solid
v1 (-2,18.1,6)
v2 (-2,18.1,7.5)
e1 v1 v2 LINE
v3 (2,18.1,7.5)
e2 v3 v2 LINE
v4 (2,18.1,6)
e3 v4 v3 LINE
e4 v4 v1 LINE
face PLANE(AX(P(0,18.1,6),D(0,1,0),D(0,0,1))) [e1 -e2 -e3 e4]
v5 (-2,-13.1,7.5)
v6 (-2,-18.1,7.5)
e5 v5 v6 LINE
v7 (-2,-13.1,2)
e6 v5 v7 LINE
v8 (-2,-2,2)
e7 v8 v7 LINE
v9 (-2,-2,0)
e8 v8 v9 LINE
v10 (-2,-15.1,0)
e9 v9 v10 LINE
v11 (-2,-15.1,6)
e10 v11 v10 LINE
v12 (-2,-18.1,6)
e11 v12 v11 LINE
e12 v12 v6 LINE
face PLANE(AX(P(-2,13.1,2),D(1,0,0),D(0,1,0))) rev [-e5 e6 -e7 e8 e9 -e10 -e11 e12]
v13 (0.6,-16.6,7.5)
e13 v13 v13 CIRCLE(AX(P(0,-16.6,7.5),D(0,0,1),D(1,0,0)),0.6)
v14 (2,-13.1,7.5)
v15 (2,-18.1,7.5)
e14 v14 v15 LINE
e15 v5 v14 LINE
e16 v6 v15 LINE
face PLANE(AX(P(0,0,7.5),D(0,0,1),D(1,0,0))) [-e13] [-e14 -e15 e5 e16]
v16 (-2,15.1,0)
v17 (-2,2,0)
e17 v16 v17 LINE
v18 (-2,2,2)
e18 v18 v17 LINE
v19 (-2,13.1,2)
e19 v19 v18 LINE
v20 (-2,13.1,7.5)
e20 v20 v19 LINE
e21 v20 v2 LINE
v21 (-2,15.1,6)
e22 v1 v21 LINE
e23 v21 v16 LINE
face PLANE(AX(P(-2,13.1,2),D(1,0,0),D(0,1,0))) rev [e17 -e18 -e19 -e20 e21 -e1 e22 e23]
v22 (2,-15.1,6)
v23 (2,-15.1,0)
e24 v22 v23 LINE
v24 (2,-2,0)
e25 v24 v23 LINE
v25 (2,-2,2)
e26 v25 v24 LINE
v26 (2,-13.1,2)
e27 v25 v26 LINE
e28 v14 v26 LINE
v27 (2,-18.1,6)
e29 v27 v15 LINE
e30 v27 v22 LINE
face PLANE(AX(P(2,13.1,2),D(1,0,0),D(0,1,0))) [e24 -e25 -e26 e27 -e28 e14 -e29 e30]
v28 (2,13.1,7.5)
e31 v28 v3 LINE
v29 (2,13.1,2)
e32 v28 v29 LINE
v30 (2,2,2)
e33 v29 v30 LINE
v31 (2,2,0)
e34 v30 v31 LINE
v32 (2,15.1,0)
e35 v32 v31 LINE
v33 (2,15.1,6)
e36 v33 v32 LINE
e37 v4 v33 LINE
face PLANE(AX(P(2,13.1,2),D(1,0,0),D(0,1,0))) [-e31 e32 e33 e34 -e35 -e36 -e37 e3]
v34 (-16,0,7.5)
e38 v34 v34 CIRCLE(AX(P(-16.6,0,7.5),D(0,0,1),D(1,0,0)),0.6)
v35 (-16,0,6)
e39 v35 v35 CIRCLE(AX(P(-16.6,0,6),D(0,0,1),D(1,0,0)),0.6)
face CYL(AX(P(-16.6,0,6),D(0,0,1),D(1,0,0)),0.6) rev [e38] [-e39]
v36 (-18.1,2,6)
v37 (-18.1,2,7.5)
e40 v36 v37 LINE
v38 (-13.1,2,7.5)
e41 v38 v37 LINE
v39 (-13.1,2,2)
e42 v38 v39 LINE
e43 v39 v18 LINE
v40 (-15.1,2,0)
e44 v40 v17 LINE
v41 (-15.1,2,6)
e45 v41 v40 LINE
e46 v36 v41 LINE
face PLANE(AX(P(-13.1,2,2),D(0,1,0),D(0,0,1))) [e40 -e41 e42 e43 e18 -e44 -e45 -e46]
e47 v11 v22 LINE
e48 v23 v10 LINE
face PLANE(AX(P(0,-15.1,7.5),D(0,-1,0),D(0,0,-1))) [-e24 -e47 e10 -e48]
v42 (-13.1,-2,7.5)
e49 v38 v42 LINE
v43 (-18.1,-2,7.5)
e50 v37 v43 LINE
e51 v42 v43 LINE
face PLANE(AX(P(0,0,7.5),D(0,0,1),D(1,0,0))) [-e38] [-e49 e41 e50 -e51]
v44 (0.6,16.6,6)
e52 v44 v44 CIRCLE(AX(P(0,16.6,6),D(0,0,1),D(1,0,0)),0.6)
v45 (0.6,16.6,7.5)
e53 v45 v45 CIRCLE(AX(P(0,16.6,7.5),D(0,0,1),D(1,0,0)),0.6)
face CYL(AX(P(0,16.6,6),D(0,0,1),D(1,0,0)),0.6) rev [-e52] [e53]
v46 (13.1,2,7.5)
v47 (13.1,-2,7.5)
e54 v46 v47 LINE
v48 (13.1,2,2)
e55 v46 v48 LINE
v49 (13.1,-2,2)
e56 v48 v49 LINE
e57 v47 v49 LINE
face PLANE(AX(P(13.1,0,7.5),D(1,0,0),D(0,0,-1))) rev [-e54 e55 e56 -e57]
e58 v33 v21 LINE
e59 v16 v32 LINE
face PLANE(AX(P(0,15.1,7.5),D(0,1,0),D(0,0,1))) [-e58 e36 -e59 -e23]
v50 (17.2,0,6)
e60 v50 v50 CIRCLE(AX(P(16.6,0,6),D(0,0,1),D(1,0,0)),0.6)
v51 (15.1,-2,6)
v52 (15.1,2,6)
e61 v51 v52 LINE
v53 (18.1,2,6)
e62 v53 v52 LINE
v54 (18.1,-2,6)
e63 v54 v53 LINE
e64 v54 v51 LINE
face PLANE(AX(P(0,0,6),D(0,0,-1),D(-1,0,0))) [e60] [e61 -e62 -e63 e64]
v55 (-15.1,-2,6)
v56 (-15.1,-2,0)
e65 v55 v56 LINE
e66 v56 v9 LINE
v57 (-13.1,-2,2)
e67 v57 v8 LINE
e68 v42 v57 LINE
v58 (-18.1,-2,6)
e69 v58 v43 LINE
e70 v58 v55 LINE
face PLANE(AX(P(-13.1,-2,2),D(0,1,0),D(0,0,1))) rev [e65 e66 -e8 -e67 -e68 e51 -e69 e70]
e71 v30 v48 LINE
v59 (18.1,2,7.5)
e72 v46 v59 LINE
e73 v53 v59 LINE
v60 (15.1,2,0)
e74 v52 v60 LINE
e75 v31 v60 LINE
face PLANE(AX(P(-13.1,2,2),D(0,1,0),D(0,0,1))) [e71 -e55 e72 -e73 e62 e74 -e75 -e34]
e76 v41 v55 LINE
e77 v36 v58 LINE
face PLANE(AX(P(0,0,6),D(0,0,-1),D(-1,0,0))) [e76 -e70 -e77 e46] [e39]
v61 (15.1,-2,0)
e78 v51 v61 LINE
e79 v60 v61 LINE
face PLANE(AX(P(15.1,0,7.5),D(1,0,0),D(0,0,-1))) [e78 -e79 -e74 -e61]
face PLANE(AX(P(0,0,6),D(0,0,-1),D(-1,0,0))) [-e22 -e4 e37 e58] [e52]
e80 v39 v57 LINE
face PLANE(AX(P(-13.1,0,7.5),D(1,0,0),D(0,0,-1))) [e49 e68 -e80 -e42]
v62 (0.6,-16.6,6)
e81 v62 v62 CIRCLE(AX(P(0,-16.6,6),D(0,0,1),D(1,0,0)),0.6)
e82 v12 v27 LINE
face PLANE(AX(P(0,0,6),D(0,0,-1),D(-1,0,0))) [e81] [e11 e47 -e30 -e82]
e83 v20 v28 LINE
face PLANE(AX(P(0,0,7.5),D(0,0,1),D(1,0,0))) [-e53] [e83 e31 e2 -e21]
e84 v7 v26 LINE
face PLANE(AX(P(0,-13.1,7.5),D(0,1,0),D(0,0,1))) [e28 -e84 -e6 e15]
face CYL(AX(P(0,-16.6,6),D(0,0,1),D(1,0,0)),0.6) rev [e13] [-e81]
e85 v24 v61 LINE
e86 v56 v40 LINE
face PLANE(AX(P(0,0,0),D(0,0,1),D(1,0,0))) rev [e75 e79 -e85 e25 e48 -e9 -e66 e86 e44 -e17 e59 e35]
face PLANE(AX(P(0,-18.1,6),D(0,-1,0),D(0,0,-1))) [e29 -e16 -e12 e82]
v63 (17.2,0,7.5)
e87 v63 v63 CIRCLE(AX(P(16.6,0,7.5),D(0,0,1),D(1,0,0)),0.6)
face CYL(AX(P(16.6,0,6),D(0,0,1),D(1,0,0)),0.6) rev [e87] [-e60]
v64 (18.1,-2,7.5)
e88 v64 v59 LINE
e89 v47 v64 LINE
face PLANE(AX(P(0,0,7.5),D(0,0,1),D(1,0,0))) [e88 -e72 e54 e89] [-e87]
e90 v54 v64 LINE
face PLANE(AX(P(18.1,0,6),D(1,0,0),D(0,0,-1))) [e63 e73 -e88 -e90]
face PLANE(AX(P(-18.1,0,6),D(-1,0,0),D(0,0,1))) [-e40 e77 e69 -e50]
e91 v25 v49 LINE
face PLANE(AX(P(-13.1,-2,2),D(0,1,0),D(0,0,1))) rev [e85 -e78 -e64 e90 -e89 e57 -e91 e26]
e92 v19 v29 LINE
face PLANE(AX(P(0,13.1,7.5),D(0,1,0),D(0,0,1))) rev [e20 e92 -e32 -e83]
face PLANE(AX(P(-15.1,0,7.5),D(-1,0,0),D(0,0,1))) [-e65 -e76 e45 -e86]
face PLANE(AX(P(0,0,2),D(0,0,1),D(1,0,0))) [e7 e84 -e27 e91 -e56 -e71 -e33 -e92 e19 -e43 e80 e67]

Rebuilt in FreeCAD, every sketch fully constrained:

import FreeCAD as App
import Part
import Sketcher


def add_polygon(sketch, points):
    """Adds a closed chain of lines whose ends are joined by coincident constraints."""
    first, n = sketch.GeometryCount, len(points)
    for a, b in zip(points, points[1:] + points[:1]):
        sketch.addGeometry(Part.LineSegment(App.Vector(*a, 0), App.Vector(*b, 0)), False)
    for i in range(n):
        sketch.addConstraint(Sketcher.Constraint("Coincident", first + i, 2, first + (i + 1) % n, 1))

doc = App.newDocument("Part")
body = doc.addObject("PartDesign::Body", "Body")

# Sketch on XY plane
sketch1 = doc.addObject("Sketcher::SketchObject", "Sketch")
body.addObject(sketch1)
sketch1.AttachmentSupport = (doc.XY_Plane, [""])
sketch1.MapMode = "FlatFace"
add_polygon(sketch1, [(-13.1, 2), (-13.1, -2), (-2, -2), (-2, -13.1), (2, -13.1), (2, -2), (13.1, -2), (13.1, 2), (2, 2), (2, 13.1), (-2, 13.1), (-2, 2)])  # lines 0-11
sketch1.addConstraint([
    Sketcher.Constraint("Vertical", 0),
    Sketcher.Constraint("Horizontal", 1),
    Sketcher.Constraint("Vertical", 2),
    Sketcher.Constraint("Horizontal", 3),
    Sketcher.Constraint("Vertical", 4),
    Sketcher.Constraint("Horizontal", 5),
    Sketcher.Constraint("Vertical", 6),
    Sketcher.Constraint("Horizontal", 7),
    Sketcher.Constraint("Vertical", 8),
    Sketcher.Constraint("Horizontal", 9),
    Sketcher.Constraint("Vertical", 10),
    Sketcher.Constraint("Horizontal", 11),
    Sketcher.Constraint("Symmetric", 0, 2, 6, 2, -1, 1),
    Sketcher.Constraint("Symmetric", 2, 2, 8, 2, -1, 1),
    Sketcher.Constraint("Symmetric", 4, 2, 10, 2, -1, 1),
    Sketcher.Constraint("Symmetric", 1, 2, 4, 2, -2),
    Sketcher.Constraint("Equal", 9, 0),
    Sketcher.Constraint("Equal", 11, 2),
    Sketcher.Constraint("DistanceX", 3, 1, 3, 2, 4.0),
    Sketcher.Constraint("DistanceX", 1, 1, 1, 2, 11.1),
])
pad1 = doc.addObject("PartDesign::Pad", "Pad")
body.addObject(pad1)
pad1.Profile = sketch1
pad1.Length = 2

# Sketch on XY plane
sketch2 = doc.addObject("Sketcher::SketchObject", "Sketch001")
body.addObject(sketch2)
sketch2.AttachmentSupport = (doc.XY_Plane, [""])
sketch2.MapMode = "FlatFace"
add_polygon(sketch2, [(13.1, 2), (13.1, -2), (15.1, -2), (15.1, 2)])  # lines 0-3
add_polygon(sketch2, [(-2, 15.1), (-2, 13.1), (2, 13.1), (2, 15.1)])  # lines 4-7
add_polygon(sketch2, [(-2, -13.1), (-2, -15.1), (2, -15.1), (2, -13.1)])  # lines 8-11
add_polygon(sketch2, [(-15.1, 2), (-15.1, -2), (-13.1, -2), (-13.1, 2)])  # lines 12-15
sketch2.addConstraint([
    Sketcher.Constraint("Vertical", 0),
    Sketcher.Constraint("Horizontal", 1),
    Sketcher.Constraint("Vertical", 2),
    Sketcher.Constraint("Horizontal", 3),
    Sketcher.Constraint("Vertical", 4),
    Sketcher.Constraint("Horizontal", 5),
    Sketcher.Constraint("Vertical", 6),
    Sketcher.Constraint("Horizontal", 7),
    Sketcher.Constraint("Vertical", 8),
    Sketcher.Constraint("Horizontal", 9),
    Sketcher.Constraint("Vertical", 10),
    Sketcher.Constraint("Horizontal", 11),
    Sketcher.Constraint("Vertical", 12),
    Sketcher.Constraint("Horizontal", 13),
    Sketcher.Constraint("Vertical", 14),
    Sketcher.Constraint("Horizontal", 15),
    Sketcher.Constraint("Symmetric", 6, 2, 8, 2, -1, 1),
    Sketcher.Constraint("Symmetric", 4, 2, 10, 2, -1, 1),
    Sketcher.Constraint("Symmetric", 2, 2, 12, 2, -1, 1),
    Sketcher.Constraint("Symmetric", 0, 2, 14, 2, -1, 1),
    Sketcher.Constraint("Horizontal", 1, 2, 12, 2),
    Sketcher.Constraint("Vertical", 7, 2, 8, 2),
    Sketcher.Constraint("Equal", 11, 0),
    Sketcher.Constraint("Equal", 15, 4),
    Sketcher.Constraint("DistanceX", 1, 1, 1, 2, 2.0),
    Sketcher.Constraint("DistanceX", 5, 1, 5, 2, 4.0),
    Sketcher.Constraint("DistanceX", -1, 1, 0, 2, 13.1),
    Sketcher.Constraint("DistanceY", -1, 1, 4, 2, 13.1),
])
pad2 = doc.addObject("PartDesign::Pad", "Pad001")
body.addObject(pad2)
pad2.Profile = sketch2
pad2.Length = 7.5

# Sketch on XY plane
sketch3 = doc.addObject("Sketcher::SketchObject", "Sketch002")
body.addObject(sketch3)
sketch3.AttachmentSupport = (doc.XY_Plane, [""])
sketch3.MapMode = "FlatFace"
sketch3.AttachmentOffset = App.Placement(App.Vector(0, 0, 7.5), App.Rotation())
add_polygon(sketch3, [(-18.1, 2), (-18.1, -2), (-15.1, -2), (-15.1, 2)])  # lines 0-3
sketch3.addGeometry(Part.Circle(App.Vector(-16.6, 0, 0), App.Vector(0, 0, 1), 0.6), False)  # 4
add_polygon(sketch3, [(-2, 18.1), (-2, 15.1), (2, 15.1), (2, 18.1)])  # lines 5-8
sketch3.addGeometry(Part.Circle(App.Vector(0, 16.6, 0), App.Vector(0, 0, 1), 0.6), False)  # 9
add_polygon(sketch3, [(15.1, 2), (15.1, -2), (18.1, -2), (18.1, 2)])  # lines 10-13
sketch3.addGeometry(Part.Circle(App.Vector(16.6, 0, 0), App.Vector(0, 0, 1), 0.6), False)  # 14
add_polygon(sketch3, [(-2, -15.1), (-2, -18.1), (2, -18.1), (2, -15.1)])  # lines 15-18
sketch3.addGeometry(Part.Circle(App.Vector(0, -16.6, 0), App.Vector(0, 0, 1), 0.6), False)  # 19
sketch3.addConstraint([
    Sketcher.Constraint("Vertical", 0),
    Sketcher.Constraint("Horizontal", 1),
    Sketcher.Constraint("Vertical", 2),
    Sketcher.Constraint("Horizontal", 3),
    Sketcher.Constraint("Vertical", 5),
    Sketcher.Constraint("Horizontal", 6),
    Sketcher.Constraint("Vertical", 7),
    Sketcher.Constraint("Horizontal", 8),
    Sketcher.Constraint("Vertical", 10),
    Sketcher.Constraint("Horizontal", 11),
    Sketcher.Constraint("Vertical", 12),
    Sketcher.Constraint("Horizontal", 13),
    Sketcher.Constraint("Vertical", 15),
    Sketcher.Constraint("Horizontal", 16),
    Sketcher.Constraint("Vertical", 17),
    Sketcher.Constraint("Horizontal", 18),
    Sketcher.Constraint("Equal", 4, 9),
    Sketcher.Constraint("Equal", 9, 14),
    Sketcher.Constraint("Equal", 14, 19),
    Sketcher.Constraint("Symmetric", 4, 3, 14, 3, -1, 1),
    Sketcher.Constraint("Symmetric", 9, 3, 19, 3, -1, 1),
    Sketcher.Constraint("Symmetric", 2, 2, 10, 2, -1, 1),
    Sketcher.Constraint("Symmetric", 0, 2, 12, 2, -1, 1),
    Sketcher.Constraint("Symmetric", 7, 2, 15, 2, -1, 1),
    Sketcher.Constraint("Symmetric", 5, 2, 17, 2, -1, 1),
    Sketcher.Constraint("PointOnObject", 4, 3, -1),
    Sketcher.Constraint("PointOnObject", 9, 3, -2),
    Sketcher.Constraint("Horizontal", 1, 2, 10, 2),
    Sketcher.Constraint("Vertical", 8, 2, 15, 2),
    Sketcher.Constraint("Equal", 18, 0),
    Sketcher.Constraint("Equal", 13, 5),
    Sketcher.Constraint("Diameter", 4, 1.2),
    Sketcher.Constraint("DistanceX", 1, 1, 1, 2, 3.0),
    Sketcher.Constraint("DistanceX", 6, 1, 6, 2, 4.0),
    Sketcher.Constraint("DistanceX", 4, 3, -1, 1, 16.6),
    Sketcher.Constraint("DistanceY", -1, 1, 9, 3, 16.6),
    Sketcher.Constraint("DistanceX", 0, 2, -1, 1, 18.1),
    Sketcher.Constraint("DistanceY", -1, 1, 5, 2, 15.1),
])
pad3 = doc.addObject("PartDesign::Pad", "Pad002")
body.addObject(pad3)
pad3.Profile = sketch3
pad3.Length = 1.5
pad3.Reversed = True

doc.recompute()
